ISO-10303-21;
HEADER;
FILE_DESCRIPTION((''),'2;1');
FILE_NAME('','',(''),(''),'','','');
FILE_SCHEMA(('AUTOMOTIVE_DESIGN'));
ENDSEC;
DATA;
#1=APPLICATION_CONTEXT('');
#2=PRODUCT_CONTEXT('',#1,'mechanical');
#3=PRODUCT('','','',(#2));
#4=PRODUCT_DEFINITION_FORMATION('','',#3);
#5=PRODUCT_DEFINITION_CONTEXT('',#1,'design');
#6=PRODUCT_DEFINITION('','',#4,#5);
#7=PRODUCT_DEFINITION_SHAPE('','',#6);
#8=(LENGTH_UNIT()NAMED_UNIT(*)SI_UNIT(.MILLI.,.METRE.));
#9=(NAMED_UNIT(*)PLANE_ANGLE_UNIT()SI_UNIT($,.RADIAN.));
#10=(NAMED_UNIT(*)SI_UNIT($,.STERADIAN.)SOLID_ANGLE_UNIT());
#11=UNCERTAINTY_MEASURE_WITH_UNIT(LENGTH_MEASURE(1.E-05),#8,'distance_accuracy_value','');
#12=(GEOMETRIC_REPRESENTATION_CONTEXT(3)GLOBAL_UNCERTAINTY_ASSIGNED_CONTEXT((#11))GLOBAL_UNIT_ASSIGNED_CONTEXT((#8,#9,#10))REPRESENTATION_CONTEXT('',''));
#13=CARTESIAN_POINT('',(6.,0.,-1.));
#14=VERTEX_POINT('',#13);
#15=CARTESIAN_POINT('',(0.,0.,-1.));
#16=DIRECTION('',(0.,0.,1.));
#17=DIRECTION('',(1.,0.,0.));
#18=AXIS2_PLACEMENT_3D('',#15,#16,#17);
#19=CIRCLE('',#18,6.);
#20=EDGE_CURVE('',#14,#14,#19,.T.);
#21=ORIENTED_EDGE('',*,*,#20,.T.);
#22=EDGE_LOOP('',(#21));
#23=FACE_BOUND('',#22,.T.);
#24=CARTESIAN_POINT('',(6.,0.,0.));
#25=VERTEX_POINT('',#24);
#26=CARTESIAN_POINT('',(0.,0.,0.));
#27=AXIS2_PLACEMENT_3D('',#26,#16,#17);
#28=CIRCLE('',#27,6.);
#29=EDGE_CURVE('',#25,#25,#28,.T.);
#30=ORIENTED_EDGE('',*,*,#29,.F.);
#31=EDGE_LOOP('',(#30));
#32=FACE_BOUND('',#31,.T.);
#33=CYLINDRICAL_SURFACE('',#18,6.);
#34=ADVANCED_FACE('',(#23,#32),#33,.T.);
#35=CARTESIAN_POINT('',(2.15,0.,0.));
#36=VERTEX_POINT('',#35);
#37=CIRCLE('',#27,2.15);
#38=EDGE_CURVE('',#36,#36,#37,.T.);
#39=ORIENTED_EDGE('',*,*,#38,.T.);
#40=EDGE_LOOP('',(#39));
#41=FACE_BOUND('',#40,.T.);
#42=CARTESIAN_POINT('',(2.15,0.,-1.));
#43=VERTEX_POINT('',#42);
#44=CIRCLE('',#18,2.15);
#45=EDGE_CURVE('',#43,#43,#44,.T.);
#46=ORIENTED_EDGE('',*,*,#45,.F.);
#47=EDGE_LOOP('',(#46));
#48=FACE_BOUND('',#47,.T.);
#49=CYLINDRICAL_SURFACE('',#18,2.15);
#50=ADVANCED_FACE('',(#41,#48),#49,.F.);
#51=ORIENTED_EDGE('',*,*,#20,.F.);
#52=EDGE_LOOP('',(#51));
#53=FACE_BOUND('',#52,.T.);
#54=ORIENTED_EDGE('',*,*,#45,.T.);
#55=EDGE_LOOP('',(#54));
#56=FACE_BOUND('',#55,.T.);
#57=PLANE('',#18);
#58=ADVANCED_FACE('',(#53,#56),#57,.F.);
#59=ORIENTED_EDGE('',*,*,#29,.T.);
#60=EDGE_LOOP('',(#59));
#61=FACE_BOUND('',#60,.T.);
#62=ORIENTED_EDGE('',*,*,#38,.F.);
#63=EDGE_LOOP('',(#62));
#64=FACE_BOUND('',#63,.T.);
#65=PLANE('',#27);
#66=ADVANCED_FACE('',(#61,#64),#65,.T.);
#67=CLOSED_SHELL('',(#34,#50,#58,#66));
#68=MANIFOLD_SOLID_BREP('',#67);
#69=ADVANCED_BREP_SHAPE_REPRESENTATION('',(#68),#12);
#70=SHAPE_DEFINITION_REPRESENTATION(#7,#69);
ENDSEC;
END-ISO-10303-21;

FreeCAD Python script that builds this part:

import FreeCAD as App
import Part
import Sketcher
from FreeCAD import Vector
Q = App.Units.Quantity

doc = App.newDocument("Part")
body = doc.addObject("PartDesign::Body", "Body")

sketch1 = doc.addObject("Sketcher::SketchObject", "Sketch")
body.addObject(sketch1)
sketch1.AttachmentSupport = (doc.XY_Plane, [""])
sketch1.MapMode = "FlatFace"
sketch1.addGeometry(Part.Circle(Vector(0, 0, 0), Vector(0, 0, 1), 6), False)
sketch1.addGeometry(Part.Circle(Vector(0, 0, 0), Vector(0, 0, 1), 2.1), False)
sketch1.addConstraint(Sketcher.Constraint("Coincident", 0, 3, -1, 1))
sketch1.addConstraint(Sketcher.Constraint("Coincident", 1, 3, -1, 1))
sketch1.addConstraint(Sketcher.Constraint("Diameter", 0, Q("12 mm")))
sketch1.addConstraint(Sketcher.Constraint("Diameter", 1, Q("4.3 mm")))
pad1 = doc.addObject("PartDesign::Pad", "Pad")
body.addObject(pad1)
pad1.Profile = sketch1
pad1.Length = 1
pad1.Reversed = True

doc.recompute()
